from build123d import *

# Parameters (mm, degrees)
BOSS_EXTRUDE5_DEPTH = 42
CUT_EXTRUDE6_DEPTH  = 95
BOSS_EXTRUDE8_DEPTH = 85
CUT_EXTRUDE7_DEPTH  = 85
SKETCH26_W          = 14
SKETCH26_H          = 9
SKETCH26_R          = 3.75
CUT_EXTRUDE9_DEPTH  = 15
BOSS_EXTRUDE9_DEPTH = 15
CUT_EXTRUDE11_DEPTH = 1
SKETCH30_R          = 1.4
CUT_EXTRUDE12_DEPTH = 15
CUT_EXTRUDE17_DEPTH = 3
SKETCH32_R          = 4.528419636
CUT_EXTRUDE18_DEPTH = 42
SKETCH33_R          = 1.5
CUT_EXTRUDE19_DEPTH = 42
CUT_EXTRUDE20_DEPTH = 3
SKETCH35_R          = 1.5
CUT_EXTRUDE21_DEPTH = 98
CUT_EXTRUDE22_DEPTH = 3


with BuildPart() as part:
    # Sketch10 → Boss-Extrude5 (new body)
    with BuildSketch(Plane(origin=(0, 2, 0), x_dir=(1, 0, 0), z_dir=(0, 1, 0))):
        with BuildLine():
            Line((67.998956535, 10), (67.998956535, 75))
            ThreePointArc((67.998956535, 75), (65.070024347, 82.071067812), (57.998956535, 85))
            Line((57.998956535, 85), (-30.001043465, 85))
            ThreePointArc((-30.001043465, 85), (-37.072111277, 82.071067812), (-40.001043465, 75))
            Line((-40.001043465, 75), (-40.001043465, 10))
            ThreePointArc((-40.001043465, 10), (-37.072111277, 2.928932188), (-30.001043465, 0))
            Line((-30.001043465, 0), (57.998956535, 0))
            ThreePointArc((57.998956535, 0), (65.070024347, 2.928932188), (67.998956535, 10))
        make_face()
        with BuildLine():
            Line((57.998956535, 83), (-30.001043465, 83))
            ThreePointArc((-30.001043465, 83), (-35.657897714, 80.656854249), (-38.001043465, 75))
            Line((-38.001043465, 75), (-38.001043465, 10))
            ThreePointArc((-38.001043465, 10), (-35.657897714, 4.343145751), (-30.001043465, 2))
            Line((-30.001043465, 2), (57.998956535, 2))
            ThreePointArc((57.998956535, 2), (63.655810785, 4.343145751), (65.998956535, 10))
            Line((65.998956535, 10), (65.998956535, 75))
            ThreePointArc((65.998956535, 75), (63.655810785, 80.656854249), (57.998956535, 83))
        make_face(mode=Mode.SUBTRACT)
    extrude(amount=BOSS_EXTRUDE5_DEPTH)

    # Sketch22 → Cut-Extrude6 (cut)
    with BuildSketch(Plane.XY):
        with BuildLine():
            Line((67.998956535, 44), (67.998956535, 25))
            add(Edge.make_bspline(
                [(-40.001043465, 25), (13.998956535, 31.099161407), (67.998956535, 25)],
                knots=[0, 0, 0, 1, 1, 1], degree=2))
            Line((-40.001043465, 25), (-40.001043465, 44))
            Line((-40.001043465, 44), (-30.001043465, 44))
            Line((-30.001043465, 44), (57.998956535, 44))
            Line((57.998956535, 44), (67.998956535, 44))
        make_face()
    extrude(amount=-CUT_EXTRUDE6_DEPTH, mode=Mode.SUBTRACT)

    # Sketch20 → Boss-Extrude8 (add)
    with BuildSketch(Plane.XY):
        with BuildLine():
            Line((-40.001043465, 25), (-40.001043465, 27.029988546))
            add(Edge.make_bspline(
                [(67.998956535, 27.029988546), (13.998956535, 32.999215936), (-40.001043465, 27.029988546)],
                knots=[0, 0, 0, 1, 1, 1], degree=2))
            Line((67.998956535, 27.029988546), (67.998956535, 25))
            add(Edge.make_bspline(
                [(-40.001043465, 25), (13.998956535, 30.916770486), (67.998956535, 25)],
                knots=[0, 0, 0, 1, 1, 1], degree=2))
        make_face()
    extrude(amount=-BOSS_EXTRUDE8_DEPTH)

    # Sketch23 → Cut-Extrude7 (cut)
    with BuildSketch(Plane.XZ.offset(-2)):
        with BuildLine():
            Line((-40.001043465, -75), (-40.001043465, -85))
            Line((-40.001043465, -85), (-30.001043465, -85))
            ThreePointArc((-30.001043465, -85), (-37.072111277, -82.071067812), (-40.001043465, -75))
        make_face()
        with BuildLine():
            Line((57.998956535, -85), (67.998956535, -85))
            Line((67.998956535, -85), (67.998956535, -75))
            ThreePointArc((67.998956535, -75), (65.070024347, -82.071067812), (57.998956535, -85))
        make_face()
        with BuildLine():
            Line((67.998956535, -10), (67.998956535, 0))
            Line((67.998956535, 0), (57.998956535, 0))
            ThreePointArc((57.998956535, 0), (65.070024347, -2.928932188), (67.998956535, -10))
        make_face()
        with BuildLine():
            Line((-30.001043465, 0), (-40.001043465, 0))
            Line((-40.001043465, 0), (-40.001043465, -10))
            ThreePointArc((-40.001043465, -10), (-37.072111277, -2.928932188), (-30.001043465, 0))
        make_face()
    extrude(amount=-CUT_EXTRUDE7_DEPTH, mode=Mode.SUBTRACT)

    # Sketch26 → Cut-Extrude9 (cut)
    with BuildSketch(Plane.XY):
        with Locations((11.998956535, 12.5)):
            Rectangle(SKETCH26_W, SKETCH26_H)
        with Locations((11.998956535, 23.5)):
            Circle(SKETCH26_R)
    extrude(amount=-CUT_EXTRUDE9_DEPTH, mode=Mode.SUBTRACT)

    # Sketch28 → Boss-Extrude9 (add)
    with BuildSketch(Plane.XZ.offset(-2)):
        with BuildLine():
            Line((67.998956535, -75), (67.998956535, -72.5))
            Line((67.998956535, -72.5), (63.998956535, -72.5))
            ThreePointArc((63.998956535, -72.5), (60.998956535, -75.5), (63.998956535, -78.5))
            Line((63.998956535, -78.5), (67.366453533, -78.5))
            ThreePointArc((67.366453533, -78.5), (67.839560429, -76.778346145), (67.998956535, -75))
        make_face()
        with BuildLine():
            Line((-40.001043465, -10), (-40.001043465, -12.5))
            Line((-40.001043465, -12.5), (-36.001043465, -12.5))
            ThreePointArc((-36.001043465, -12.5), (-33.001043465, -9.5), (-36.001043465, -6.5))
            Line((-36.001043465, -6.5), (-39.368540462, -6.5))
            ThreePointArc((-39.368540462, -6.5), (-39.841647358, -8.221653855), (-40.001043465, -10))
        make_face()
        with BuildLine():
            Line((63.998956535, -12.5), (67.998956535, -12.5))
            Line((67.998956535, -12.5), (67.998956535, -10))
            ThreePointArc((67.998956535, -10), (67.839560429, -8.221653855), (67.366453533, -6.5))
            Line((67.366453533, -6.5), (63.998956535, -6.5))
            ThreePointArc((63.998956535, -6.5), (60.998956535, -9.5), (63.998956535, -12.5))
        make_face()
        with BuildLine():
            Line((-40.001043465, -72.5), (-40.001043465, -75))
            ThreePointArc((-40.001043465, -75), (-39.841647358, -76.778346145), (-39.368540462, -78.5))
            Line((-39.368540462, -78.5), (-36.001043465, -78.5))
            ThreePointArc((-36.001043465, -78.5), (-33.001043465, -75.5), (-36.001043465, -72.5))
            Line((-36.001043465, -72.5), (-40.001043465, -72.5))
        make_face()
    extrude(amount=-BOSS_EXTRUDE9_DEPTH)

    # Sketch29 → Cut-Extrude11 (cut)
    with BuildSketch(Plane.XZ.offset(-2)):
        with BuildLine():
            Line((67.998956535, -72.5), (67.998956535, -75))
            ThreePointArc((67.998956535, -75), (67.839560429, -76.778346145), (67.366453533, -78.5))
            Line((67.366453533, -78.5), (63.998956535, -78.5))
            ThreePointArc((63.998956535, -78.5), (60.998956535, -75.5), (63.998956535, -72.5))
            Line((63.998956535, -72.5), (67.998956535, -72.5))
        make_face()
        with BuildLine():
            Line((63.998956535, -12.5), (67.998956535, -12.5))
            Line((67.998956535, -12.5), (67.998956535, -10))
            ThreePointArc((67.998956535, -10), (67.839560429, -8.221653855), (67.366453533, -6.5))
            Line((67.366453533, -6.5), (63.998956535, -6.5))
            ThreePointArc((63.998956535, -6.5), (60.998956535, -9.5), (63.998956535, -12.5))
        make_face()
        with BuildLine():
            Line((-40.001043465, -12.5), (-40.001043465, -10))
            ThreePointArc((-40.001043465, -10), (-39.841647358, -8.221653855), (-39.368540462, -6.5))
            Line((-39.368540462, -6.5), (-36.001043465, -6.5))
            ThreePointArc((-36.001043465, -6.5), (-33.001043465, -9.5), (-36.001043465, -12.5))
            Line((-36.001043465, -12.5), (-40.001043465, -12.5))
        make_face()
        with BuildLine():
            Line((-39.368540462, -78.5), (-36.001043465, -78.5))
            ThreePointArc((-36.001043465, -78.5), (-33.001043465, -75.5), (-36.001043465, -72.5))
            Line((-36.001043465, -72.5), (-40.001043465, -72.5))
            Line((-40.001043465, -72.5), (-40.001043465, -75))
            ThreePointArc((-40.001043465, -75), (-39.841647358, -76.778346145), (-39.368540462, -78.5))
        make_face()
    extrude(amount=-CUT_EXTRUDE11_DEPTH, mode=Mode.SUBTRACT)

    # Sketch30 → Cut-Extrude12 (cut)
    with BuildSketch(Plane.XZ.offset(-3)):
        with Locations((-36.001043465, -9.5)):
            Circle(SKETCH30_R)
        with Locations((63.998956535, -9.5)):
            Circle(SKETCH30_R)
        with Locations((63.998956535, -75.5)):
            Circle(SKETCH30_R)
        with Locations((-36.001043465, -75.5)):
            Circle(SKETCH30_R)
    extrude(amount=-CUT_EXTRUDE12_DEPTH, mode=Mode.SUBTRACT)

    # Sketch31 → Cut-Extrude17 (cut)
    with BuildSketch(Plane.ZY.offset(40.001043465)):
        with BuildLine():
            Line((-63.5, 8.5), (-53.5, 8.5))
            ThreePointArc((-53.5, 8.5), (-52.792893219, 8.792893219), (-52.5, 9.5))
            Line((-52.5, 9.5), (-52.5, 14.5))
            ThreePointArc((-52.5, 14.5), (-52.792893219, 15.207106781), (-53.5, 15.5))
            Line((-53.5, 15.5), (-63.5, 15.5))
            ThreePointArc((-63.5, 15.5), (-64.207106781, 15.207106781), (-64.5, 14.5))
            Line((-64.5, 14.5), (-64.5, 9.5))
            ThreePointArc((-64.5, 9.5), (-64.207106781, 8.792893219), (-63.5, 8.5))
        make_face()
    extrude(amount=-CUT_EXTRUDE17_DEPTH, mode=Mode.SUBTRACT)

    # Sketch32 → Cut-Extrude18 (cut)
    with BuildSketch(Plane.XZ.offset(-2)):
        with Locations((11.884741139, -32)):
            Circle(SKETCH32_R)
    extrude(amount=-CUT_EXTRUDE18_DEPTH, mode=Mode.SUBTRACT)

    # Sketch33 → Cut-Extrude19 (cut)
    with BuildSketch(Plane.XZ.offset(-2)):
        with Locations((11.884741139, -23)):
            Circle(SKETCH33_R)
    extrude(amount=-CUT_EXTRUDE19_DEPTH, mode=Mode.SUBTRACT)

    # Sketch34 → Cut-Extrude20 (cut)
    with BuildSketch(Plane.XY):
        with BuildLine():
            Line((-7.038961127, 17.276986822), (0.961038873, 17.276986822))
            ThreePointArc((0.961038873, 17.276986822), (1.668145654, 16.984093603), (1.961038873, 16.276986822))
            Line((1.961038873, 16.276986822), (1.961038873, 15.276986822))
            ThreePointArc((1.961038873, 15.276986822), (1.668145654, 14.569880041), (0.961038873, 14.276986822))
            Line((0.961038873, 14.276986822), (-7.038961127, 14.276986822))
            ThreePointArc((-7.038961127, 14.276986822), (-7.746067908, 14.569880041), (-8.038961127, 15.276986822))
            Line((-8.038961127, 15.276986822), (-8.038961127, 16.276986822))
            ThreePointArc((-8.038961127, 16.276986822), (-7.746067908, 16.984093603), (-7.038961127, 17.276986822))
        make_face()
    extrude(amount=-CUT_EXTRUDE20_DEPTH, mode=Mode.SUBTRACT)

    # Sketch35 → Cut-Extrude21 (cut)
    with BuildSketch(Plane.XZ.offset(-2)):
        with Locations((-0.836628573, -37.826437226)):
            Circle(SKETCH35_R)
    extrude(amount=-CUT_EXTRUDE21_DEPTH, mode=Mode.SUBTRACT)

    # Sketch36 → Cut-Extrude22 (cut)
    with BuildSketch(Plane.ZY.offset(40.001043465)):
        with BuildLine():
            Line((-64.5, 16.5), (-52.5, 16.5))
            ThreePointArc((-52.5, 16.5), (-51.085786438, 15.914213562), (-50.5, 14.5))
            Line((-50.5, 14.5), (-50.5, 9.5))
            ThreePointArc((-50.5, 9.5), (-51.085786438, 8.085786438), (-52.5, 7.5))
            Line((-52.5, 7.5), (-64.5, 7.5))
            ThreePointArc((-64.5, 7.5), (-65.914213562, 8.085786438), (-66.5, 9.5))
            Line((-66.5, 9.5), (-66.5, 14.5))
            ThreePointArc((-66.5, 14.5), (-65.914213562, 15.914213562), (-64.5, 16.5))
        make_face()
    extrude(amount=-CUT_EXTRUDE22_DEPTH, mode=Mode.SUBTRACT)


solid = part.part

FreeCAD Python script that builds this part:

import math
import FreeCAD as App
import Part
import Sketcher
from FreeCAD import Vector

doc = App.newDocument("Part")
body = doc.addObject("PartDesign::Body", "Body")

sketch1 = body.newObject("Sketcher::SketchObject", "Sketch")
sketch1.AttachmentSupport = (doc.getObject("XZ_Plane"), [""])
sketch1.MapMode = "FlatFace"
sketch1.AttachmentOffset = App.Placement(Vector(0, 0, -2), App.Rotation())
sketch1.addGeometry(Part.LineSegment(Vector(67.998957, -10, 0), Vector(67.998957, -75, 0)), False)
sketch1.addGeometry(Part.ArcOfCircle(Part.Circle(Vector(57.998957, -75, 0), Vector(0, 0, 1), 10), math.radians(-90), math.radians(0)), False)
sketch1.addGeometry(Part.LineSegment(Vector(57.998957, -85, 0), Vector(-30.001043, -85, 0)), False)
sketch1.addGeometry(Part.ArcOfCircle(Part.Circle(Vector(-30.001043, -75, 0), Vector(0, 0, 1), 10), math.radians(180), math.radians(270)), False)
sketch1.addGeometry(Part.LineSegment(Vector(-40.001043, -75, 0), Vector(-40.001043, -10, 0)), False)
sketch1.addGeometry(Part.ArcOfCircle(Part.Circle(Vector(-30.001043, -10, 0), Vector(0, 0, 1), 10), math.radians(90), math.radians(180)), False)
sketch1.addGeometry(Part.LineSegment(Vector(-30.001043, 0, 0), Vector(57.998957, 0, 0)), False)
sketch1.addGeometry(Part.ArcOfCircle(Part.Circle(Vector(57.998957, -10, 0), Vector(0, 0, 1), 10), math.radians(0), math.radians(90)), False)
sketch1.addGeometry(Part.LineSegment(Vector(-30.001043, -83, 0), Vector(57.998957, -83, 0)), False)
sketch1.addGeometry(Part.ArcOfCircle(Part.Circle(Vector(57.998957, -75, 0), Vector(0, 0, 1), 8), math.radians(-90), math.radians(0)), False)
sketch1.addGeometry(Part.LineSegment(Vector(65.998957, -75, 0), Vector(65.998957, -10, 0)), False)
sketch1.addGeometry(Part.ArcOfCircle(Part.Circle(Vector(57.998957, -10, 0), Vector(0, 0, 1), 8), math.radians(0), math.radians(90)), False)
sketch1.addGeometry(Part.LineSegment(Vector(57.998957, -2, 0), Vector(-30.001043, -2, 0)), False)
sketch1.addGeometry(Part.ArcOfCircle(Part.Circle(Vector(-30.001043, -10, 0), Vector(0, 0, 1), 8), math.radians(90), math.radians(180)), False)
sketch1.addGeometry(Part.LineSegment(Vector(-38.001043, -10, 0), Vector(-38.001043, -75, 0)), False)
sketch1.addGeometry(Part.ArcOfCircle(Part.Circle(Vector(-30.001043, -75, 0), Vector(0, 0, 1), 8), math.radians(-180), math.radians(-90)), False)
sketch1.addConstraint(Sketcher.Constraint("Tangent", 0, 2, 1, 2))
sketch1.addConstraint(Sketcher.Constraint("Tangent", 1, 1, 2, 1))
sketch1.addConstraint(Sketcher.Constraint("Tangent", 2, 2, 3, 2))
sketch1.addConstraint(Sketcher.Constraint("Tangent", 3, 1, 4, 1))
sketch1.addConstraint(Sketcher.Constraint("Tangent", 4, 2, 5, 2))
sketch1.addConstraint(Sketcher.Constraint("Tangent", 5, 1, 6, 1))
sketch1.addConstraint(Sketcher.Constraint("Tangent", 6, 2, 7, 2))
sketch1.addConstraint(Sketcher.Constraint("Tangent", 7, 1, 0, 1))
sketch1.addConstraint(Sketcher.Constraint("Tangent", 8, 2, 9, 1))
sketch1.addConstraint(Sketcher.Constraint("Tangent", 9, 2, 10, 1))
sketch1.addConstraint(Sketcher.Constraint("Tangent", 10, 2, 11, 1))
sketch1.addConstraint(Sketcher.Constraint("Tangent", 11, 2, 12, 1))
sketch1.addConstraint(Sketcher.Constraint("Tangent", 12, 2, 13, 1))
sketch1.addConstraint(Sketcher.Constraint("Tangent", 13, 2, 14, 1))
sketch1.addConstraint(Sketcher.Constraint("Tangent", 14, 2, 15, 1))
sketch1.addConstraint(Sketcher.Constraint("Tangent", 15, 2, 8, 1))
sketch1.addConstraint(Sketcher.Constraint("Vertical", 0))
sketch1.addConstraint(Sketcher.Constraint("Horizontal", 2))
sketch1.addConstraint(Sketcher.Constraint("Vertical", 4))
sketch1.addConstraint(Sketcher.Constraint("Horizontal", 6))
sketch1.addConstraint(Sketcher.Constraint("Horizontal", 8))
sketch1.addConstraint(Sketcher.Constraint("Vertical", 10))
sketch1.addConstraint(Sketcher.Constraint("Horizontal", 12))
sketch1.addConstraint(Sketcher.Constraint("Vertical", 14))
sketch1.addConstraint(Sketcher.Constraint("Coincident", 9, 3, 1, 3))
sketch1.addConstraint(Sketcher.Constraint("Coincident", 11, 3, 7, 3))
sketch1.addConstraint(Sketcher.Constraint("Coincident", 13, 3, 5, 3))
sketch1.addConstraint(Sketcher.Constraint("Equal", 1, 3))
sketch1.addConstraint(Sketcher.Constraint("Equal", 3, 5))
sketch1.addConstraint(Sketcher.Constraint("Equal", 5, 7))
sketch1.addConstraint(Sketcher.Constraint("Equal", 13, 15))
sketch1.addConstraint(Sketcher.Constraint("PointOnObject", 5, 1, -1))
sketch1.addConstraint(Sketcher.Constraint("Radius", 1, 10.0))
sketch1.addConstraint(Sketcher.Constraint("Radius", 9, 8.0))
sketch1.addConstraint(Sketcher.Constraint("DistanceX", 2, 2, 2, 1, 88.0))
sketch1.addConstraint(Sketcher.Constraint("DistanceY", 0, 2, 0, 1, 65.0))
sketch1.addConstraint(Sketcher.Constraint("DistanceX", -1, 1, 1, 3, 57.998957))
pad1 = body.newObject("PartDesign::Pad", "Pad")
pad1.Profile = sketch1
pad1.Length = 42
pad1.Reversed = True

sketch2 = body.newObject("Sketcher::SketchObject", "Sketch001")
sketch2.AttachmentSupport = (doc.getObject("XY_Plane"), [""])
sketch2.MapMode = "FlatFace"
sketch2.addGeometry(Part.LineSegment(Vector(67.998957, 25, 0), Vector(67.998957, 44, 0)), False)
sketch2.addGeometry(Part.LineSegment(Vector(67.998957, 44, 0), Vector(-40.001043, 44, 0)), False)
sketch2.addGeometry(Part.LineSegment(Vector(-40.001043, 44, 0), Vector(-40.001043, 25, 0)), False)
sketch2.addGeometry(Part.BSplineCurve([Vector(-40.001043, 25, 0), Vector(13.998957, 31.099161, 0), Vector(67.998957, 25, 0)], [3, 3], [0, 1], False, 2, [1, 1, 1], False), False)
sketch2.addConstraint(Sketcher.Constraint("Block", 3))
sketch2.addConstraint(Sketcher.Constraint("Coincident", 0, 2, 1, 1))
sketch2.addConstraint(Sketcher.Constraint("Coincident", 1, 2, 2, 1))
sketch2.addConstraint(Sketcher.Constraint("Coincident", 2, 2, 3, 1))
sketch2.addConstraint(Sketcher.Constraint("Coincident", 3, 2, 0, 1))
sketch2.addConstraint(Sketcher.Constraint("Vertical", 0))
sketch2.addConstraint(Sketcher.Constraint("Horizontal", 1))
sketch2.addConstraint(Sketcher.Constraint("Vertical", 2))
sketch2.addConstraint(Sketcher.Constraint("DistanceY", 0, 1, 0, 2, 19.0))
pocket1 = body.newObject("PartDesign::Pocket", "Pocket")
pocket1.Profile = sketch2
pocket1.Length = 95

sketch3 = body.newObject("Sketcher::SketchObject", "Sketch002")
sketch3.AttachmentSupport = (doc.getObject("XY_Plane"), [""])
sketch3.MapMode = "FlatFace"
sketch3.addGeometry(Part.LineSegment(Vector(-40.001043, 27.029989, 0), Vector(-40.001043, 25, 0)), False)
sketch3.addGeometry(Part.BSplineCurve([Vector(-40.001043, 25, 0), Vector(13.998957, 30.91677, 0), Vector(67.998957, 25, 0)], [3, 3], [0, 1], False, 2, [1, 1, 1], False), False)
sketch3.addGeometry(Part.LineSegment(Vector(67.998957, 25, 0), Vector(67.998957, 27.029989, 0)), False)
sketch3.addGeometry(Part.BSplineCurve([Vector(67.998957, 27.029989, 0), Vector(13.998957, 32.999216, 0), Vector(-40.001043, 27.029989, 0)], [3, 3], [0, 1], False, 2, [1, 1, 1], False), False)
sketch3.addConstraint(Sketcher.Constraint("Block", 1))
sketch3.addConstraint(Sketcher.Constraint("Block", 3))
sketch3.addConstraint(Sketcher.Constraint("Coincident", 0, 2, 1, 1))
sketch3.addConstraint(Sketcher.Constraint("Coincident", 1, 2, 2, 1))
sketch3.addConstraint(Sketcher.Constraint("Coincident", 2, 2, 3, 1))
sketch3.addConstraint(Sketcher.Constraint("Coincident", 3, 2, 0, 1))
pad2 = body.newObject("PartDesign::Pad", "Pad001")
pad2.Profile = sketch3
pad2.Length = 85
pad2.Reversed = True

sketch4 = body.newObject("Sketcher::SketchObject", "Sketch003")
sketch4.AttachmentSupport = (doc.getObject("XZ_Plane"), [""])
sketch4.MapMode = "FlatFace"
sketch4.AttachmentOffset = App.Placement(Vector(0, 0, -2), App.Rotation())
sketch4.addGeometry(Part.LineSegment(Vector(-40.001043, -75, 0), Vector(-40.001043, -85, 0)), False)
sketch4.addGeometry(Part.LineSegment(Vector(-40.001043, -85, 0), Vector(-30.001043, -85, 0)), False)
sketch4.addGeometry(Part.ArcOfCircle(Part.Circle(Vector(-30.001043, -75, 0), Vector(0, 0, 1), 10), math.radians(180), math.radians(270)), False)
sketch4.addGeometry(Part.LineSegment(Vector(57.998957, -85, 0), Vector(67.998957, -85, 0)), False)
sketch4.addGeometry(Part.LineSegment(Vector(67.998957, -85, 0), Vector(67.998957, -75, 0)), False)
sketch4.addGeometry(Part.ArcOfCircle(Part.Circle(Vector(57.998957, -75, 0), Vector(0, 0, 1), 10), math.radians(-90), math.radians(0)), False)
sketch4.addGeometry(Part.LineSegment(Vector(67.998957, -10, 0), Vector(67.998957, 0, 0)), False)
sketch4.addGeometry(Part.LineSegment(Vector(67.998957, 0, 0), Vector(57.998957, 0, 0)), False)
sketch4.addGeometry(Part.ArcOfCircle(Part.Circle(Vector(57.998957, -10, 0), Vector(0, 0, 1), 10), math.radians(0), math.radians(90)), False)
sketch4.addGeometry(Part.LineSegment(Vector(-30.001043, 0, 0), Vector(-40.001043, 0, 0)), False)
sketch4.addGeometry(Part.LineSegment(Vector(-40.001043, 0, 0), Vector(-40.001043, -10, 0)), False)
sketch4.addGeometry(Part.ArcOfCircle(Part.Circle(Vector(-30.001043, -10, 0), Vector(0, 0, 1), 10), math.radians(90), math.radians(180)), False)
sketch4.addConstraint(Sketcher.Constraint("Coincident", 0, 2, 1, 1))
sketch4.addConstraint(Sketcher.Constraint("Tangent", 1, 2, 2, 2))
sketch4.addConstraint(Sketcher.Constraint("Tangent", 2, 1, 0, 1))
sketch4.addConstraint(Sketcher.Constraint("Coincident", 3, 2, 4, 1))
sketch4.addConstraint(Sketcher.Constraint("Tangent", 4, 2, 5, 2))
sketch4.addConstraint(Sketcher.Constraint("Tangent", 5, 1, 3, 1))
sketch4.addConstraint(Sketcher.Constraint("Coincident", 6, 2, 7, 1))
sketch4.addConstraint(Sketcher.Constraint("Tangent", 7, 2, 8, 2))
sketch4.addConstraint(Sketcher.Constraint("Tangent", 8, 1, 6, 1))
sketch4.addConstraint(Sketcher.Constraint("Coincident", 9, 2, 10, 1))
sketch4.addConstraint(Sketcher.Constraint("Tangent", 10, 2, 11, 2))
sketch4.addConstraint(Sketcher.Constraint("Tangent", 11, 1, 9, 1))
sketch4.addConstraint(Sketcher.Constraint("Vertical", 0))
sketch4.addConstraint(Sketcher.Constraint("Horizontal", 1))
sketch4.addConstraint(Sketcher.Constraint("Horizontal", 3))
sketch4.addConstraint(Sketcher.Constraint("Vertical", 4))
sketch4.addConstraint(Sketcher.Constraint("Vertical", 6))
sketch4.addConstraint(Sketcher.Constraint("Horizontal", 7))
sketch4.addConstraint(Sketcher.Constraint("Horizontal", 9))
sketch4.addConstraint(Sketcher.Constraint("Vertical", 10))
sketch4.addConstraint(Sketcher.Constraint("Equal", 2, 5))
sketch4.addConstraint(Sketcher.Constraint("Equal", 5, 8))
sketch4.addConstraint(Sketcher.Constraint("Equal", 8, 11))
sketch4.addConstraint(Sketcher.Constraint("PointOnObject", 6, 2, -1))
sketch4.addConstraint(Sketcher.Constraint("PointOnObject", 9, 2, -1))
sketch4.addConstraint(Sketcher.Constraint("Horizontal", 2, 3, 5, 3))
sketch4.addConstraint(Sketcher.Constraint("Vertical", 5, 3, 8, 3))
sketch4.addConstraint(Sketcher.Constraint("Vertical", 2, 3, 11, 3))
sketch4.addConstraint(Sketcher.Constraint("Radius", 2, 10.0))
sketch4.addConstraint(Sketcher.Constraint("DistanceY", 2, 3, -1, 1, 75.0))
sketch4.addConstraint(Sketcher.Constraint("DistanceX", 2, 3, 5, 3, 88.0))
sketch4.addConstraint(Sketcher.Constraint("DistanceX", 2, 3, -1, 1, 30.001043))
pocket2 = body.newObject("PartDesign::Pocket", "Pocket001")
pocket2.Profile = sketch4
pocket2.Length = 85

sketch5 = body.newObject("Sketcher::SketchObject", "Sketch004")
sketch5.AttachmentSupport = (doc.getObject("XY_Plane"), [""])
sketch5.MapMode = "FlatFace"
sketch5.addGeometry(Part.LineSegment(Vector(4.998957, 17, 0), Vector(4.998957, 8, 0)), False)
sketch5.addGeometry(Part.LineSegment(Vector(4.998957, 8, 0), Vector(18.998957, 8, 0)), False)
sketch5.addGeometry(Part.LineSegment(Vector(18.998957, 8, 0), Vector(18.998957, 17, 0)), False)
sketch5.addGeometry(Part.LineSegment(Vector(18.998957, 17, 0), Vector(4.998957, 17, 0)), False)
sketch5.addGeometry(Part.Circle(Vector(11.998957, 23.5, 0), Vector(0, 0, 1), 3.75), False)
sketch5.addConstraint(Sketcher.Constraint("Coincident", 0, 2, 1, 1))
sketch5.addConstraint(Sketcher.Constraint("Coincident", 1, 2, 2, 1))
sketch5.addConstraint(Sketcher.Constraint("Coincident", 2, 2, 3, 1))
sketch5.addConstraint(Sketcher.Constraint("Coincident", 3, 2, 0, 1))
sketch5.addConstraint(Sketcher.Constraint("Vertical", 0))
sketch5.addConstraint(Sketcher.Constraint("Horizontal", 1))
sketch5.addConstraint(Sketcher.Constraint("Vertical", 2))
sketch5.addConstraint(Sketcher.Constraint("Horizontal", 3))
sketch5.addConstraint(Sketcher.Constraint("Diameter", 4, 7.5))
sketch5.addConstraint(Sketcher.Constraint("DistanceX", 1, 1, 1, 2, 14.0))
sketch5.addConstraint(Sketcher.Constraint("DistanceY", 0, 2, 0, 1, 9.0))
sketch5.addConstraint(Sketcher.Constraint("DistanceY", -1, 1, 0, 2, 8.0))
sketch5.addConstraint(Sketcher.Constraint("DistanceX", 0, 2, 4, 3, 7.0))
sketch5.addConstraint(Sketcher.Constraint("DistanceY", -1, 1, 4, 3, 23.5))
sketch5.addConstraint(Sketcher.Constraint("DistanceX", -1, 1, 4, 3, 11.998957))
pocket3 = body.newObject("PartDesign::Pocket", "Pocket002")
pocket3.Profile = sketch5
pocket3.Length = 15

sketch6 = body.newObject("Sketcher::SketchObject", "Sketch005")
sketch6.AttachmentSupport = (doc.getObject("XZ_Plane"), [""])
sketch6.MapMode = "FlatFace"
sketch6.AttachmentOffset = App.Placement(Vector(0, 0, -2), App.Rotation())
sketch6.addGeometry(Part.LineSegment(Vector(67.998957, -75, 0), Vector(67.998957, -72.5, 0)), False)
sketch6.addGeometry(Part.LineSegment(Vector(67.998957, -72.5, 0), Vector(63.998957, -72.5, 0)), False)
sketch6.addGeometry(Part.ArcOfCircle(Part.Circle(Vector(63.998957, -75.5, 0), Vector(0, 0, 1), 3), math.radians(90), math.radians(270)), False)
sketch6.addGeometry(Part.LineSegment(Vector(63.998957, -78.5, 0), Vector(67.366454, -78.5, 0)), False)
sketch6.addGeometry(Part.ArcOfCircle(Part.Circle(Vector(57.998957, -75, 0), Vector(0, 0, 1), 10), math.radians(-20.487315), math.radians(0)), False)
sketch6.addGeometry(Part.LineSegment(Vector(-40.001043, -10, 0), Vector(-40.001043, -12.5, 0)), False)
sketch6.addGeometry(Part.LineSegment(Vector(-40.001043, -12.5, 0), Vector(-36.001043, -12.5, 0)), False)
sketch6.addGeometry(Part.ArcOfCircle(Part.Circle(Vector(-36.001043, -9.5, 0), Vector(0, 0, 1), 3), math.radians(-90), math.radians(90)), False)
sketch6.addGeometry(Part.LineSegment(Vector(-36.001043, -6.5, 0), Vector(-39.36854, -6.5, 0)), False)
sketch6.addGeometry(Part.ArcOfCircle(Part.Circle(Vector(-30.001043, -10, 0), Vector(0, 0, 1), 10), math.radians(159.512685), math.radians(180)), False)
sketch6.addGeometry(Part.LineSegment(Vector(63.998957, -12.5, 0), Vector(67.998957, -12.5, 0)), False)
sketch6.addGeometry(Part.LineSegment(Vector(67.998957, -12.5, 0), Vector(67.998957, -10, 0)), False)
sketch6.addGeometry(Part.ArcOfCircle(Part.Circle(Vector(57.998957, -10, 0), Vector(0, 0, 1), 10), math.radians(0), math.radians(20.487315)), False)
sketch6.addGeometry(Part.LineSegment(Vector(67.366454, -6.5, 0), Vector(63.998957, -6.5, 0)), False)
sketch6.addGeometry(Part.ArcOfCircle(Part.Circle(Vector(63.998957, -9.5, 0), Vector(0, 0, 1), 3), math.radians(90), math.radians(270)), False)
sketch6.addGeometry(Part.LineSegment(Vector(-40.001043, -72.5, 0), Vector(-40.001043, -75, 0)), False)
sketch6.addGeometry(Part.ArcOfCircle(Part.Circle(Vector(-30.001043, -75, 0), Vector(0, 0, 1), 10), math.radians(-180), math.radians(-159.512685)), False)
sketch6.addGeometry(Part.LineSegment(Vector(-39.36854, -78.5, 0), Vector(-36.001043, -78.5, 0)), False)
sketch6.addGeometry(Part.ArcOfCircle(Part.Circle(Vector(-36.001043, -75.5, 0), Vector(0, 0, 1), 3), math.radians(-90), math.radians(90)), False)
sketch6.addGeometry(Part.LineSegment(Vector(-36.001043, -72.5, 0), Vector(-40.001043, -72.5, 0)), False)
sketch6.addConstraint(Sketcher.Constraint("Coincident", 0, 2, 1, 1))
sketch6.addConstraint(Sketcher.Constraint("Tangent", 1, 2, 2, 1))
sketch6.addConstraint(Sketcher.Constraint("Tangent", 2, 2, 3, 1))
sketch6.addConstraint(Sketcher.Constraint("Coincident", 3, 2, 4, 1))
sketch6.addConstraint(Sketcher.Constraint("Tangent", 4, 2, 0, 1))
sketch6.addConstraint(Sketcher.Constraint("Coincident", 5, 2, 6, 1))
sketch6.addConstraint(Sketcher.Constraint("Tangent", 6, 2, 7, 1))
sketch6.addConstraint(Sketcher.Constraint("Tangent", 7, 2, 8, 1))
sketch6.addConstraint(Sketcher.Constraint("Coincident", 8, 2, 9, 1))
sketch6.addConstraint(Sketcher.Constraint("Tangent", 9, 2, 5, 1))
sketch6.addConstraint(Sketcher.Constraint("Coincident", 10, 2, 11, 1))
sketch6.addConstraint(Sketcher.Constraint("Tangent", 11, 2, 12, 1))
sketch6.addConstraint(Sketcher.Constraint("Coincident", 12, 2, 13, 1))
sketch6.addConstraint(Sketcher.Constraint("Tangent", 13, 2, 14, 1))
sketch6.addConstraint(Sketcher.Constraint("Tangent", 14, 2, 10, 1))
sketch6.addConstraint(Sketcher.Constraint("Tangent", 15, 2, 16, 1))
sketch6.addConstraint(Sketcher.Constraint("Coincident", 16, 2, 17, 1))
sketch6.addConstraint(Sketcher.Constraint("Tangent", 17, 2, 18, 1))
sketch6.addConstraint(Sketcher.Constraint("Tangent", 18, 2, 19, 1))
sketch6.addConstraint(Sketcher.Constraint("Coincident", 19, 2, 15, 1))
sketch6.addConstraint(Sketcher.Constraint("Vertical", 0))
sketch6.addConstraint(Sketcher.Constraint("Horizontal", 1))
sketch6.addConstraint(Sketcher.Constraint("Horizontal", 3))
sketch6.addConstraint(Sketcher.Constraint("Vertical", 5))
sketch6.addConstraint(Sketcher.Constraint("Horizontal", 6))
sketch6.addConstraint(Sketcher.Constraint("Horizontal", 8))
sketch6.addConstraint(Sketcher.Constraint("Horizontal", 10))
sketch6.addConstraint(Sketcher.Constraint("Vertical", 11))
sketch6.addConstraint(Sketcher.Constraint("Horizontal", 13))
sketch6.addConstraint(Sketcher.Constraint("Vertical", 15))
sketch6.addConstraint(Sketcher.Constraint("Horizontal", 17))
sketch6.addConstraint(Sketcher.Constraint("Horizontal", 19))
sketch6.addConstraint(Sketcher.Constraint("Equal", 2, 7))
sketch6.addConstraint(Sketcher.Constraint("Equal", 4, 9))
sketch6.addConstraint(Sketcher.Constraint("Equal", 9, 12))
sketch6.addConstraint(Sketcher.Constraint("Equal", 7, 14))
sketch6.addConstraint(Sketcher.Constraint("Equal", 12, 16))
sketch6.addConstraint(Sketcher.Constraint("Equal", 14, 18))
sketch6.addConstraint(Sketcher.Constraint("Horizontal", 9, 3, 12, 3))
sketch6.addConstraint(Sketcher.Constraint("Horizontal", 7, 3, 14, 3))
sketch6.addConstraint(Sketcher.Constraint("Horizontal", 4, 3, 16, 3))
sketch6.addConstraint(Sketcher.Constraint("Horizontal", 2, 3, 18, 3))
sketch6.addConstraint(Sketcher.Constraint("Vertical", 4, 3, 12, 3))
sketch6.addConstraint(Sketcher.Constraint("Vertical", 2, 3, 14, 3))
sketch6.addConstraint(Sketcher.Constraint("Vertical", 9, 3, 16, 3))
sketch6.addConstraint(Sketcher.Constraint("Vertical", 7, 3, 18, 3))
sketch6.addConstraint(Sketcher.Constraint("Vertical", 3, 2, 12, 2))
sketch6.addConstraint(Sketcher.Constraint("Equal", 1, 6))
sketch6.addConstraint(Sketcher.Constraint("Radius", 2, 3.0))
sketch6.addConstraint(Sketcher.Constraint("Radius", 4, 10.0))
sketch6.addConstraint(Sketcher.Constraint("DistanceX", 1, 2, 1, 1, 4.0))
sketch6.addConstraint(Sketcher.Constraint("DistanceY", 0, 1, 0, 2, 2.5))
sketch6.addConstraint(Sketcher.Constraint("DistanceY", 4, 3, -1, 1, 75.0))
sketch6.addConstraint(Sketcher.Constraint("DistanceY", 9, 3, -1, 1, 10.0))
sketch6.addConstraint(Sketcher.Constraint("DistanceX", 7, 3, 4, 3, 94.0))
sketch6.addConstraint(Sketcher.Constraint("DistanceX", 8, 2, -1, 1, 39.36854))
pad3 = body.newObject("PartDesign::Pad", "Pad002")
pad3.Profile = sketch6
pad3.Length = 15
pad3.Reversed = True

sketch7 = body.newObject("Sketcher::SketchObject", "Sketch006")
sketch7.AttachmentSupport = (doc.getObject("XZ_Plane"), [""])
sketch7.MapMode = "FlatFace"
sketch7.AttachmentOffset = App.Placement(Vector(0, 0, -2), App.Rotation())
sketch7.addGeometry(Part.LineSegment(Vector(67.998957, -75, 0), Vector(67.998957, -72.5, 0)), False)
sketch7.addGeometry(Part.LineSegment(Vector(67.998957, -72.5, 0), Vector(63.998957, -72.5, 0)), False)
sketch7.addGeometry(Part.ArcOfCircle(Part.Circle(Vector(63.998957, -75.5, 0), Vector(0, 0, 1), 3), math.radians(90), math.radians(270)), False)
sketch7.addGeometry(Part.LineSegment(Vector(63.998957, -78.5, 0), Vector(67.366454, -78.5, 0)), False)
sketch7.addGeometry(Part.ArcOfCircle(Part.Circle(Vector(57.998957, -75, 0), Vector(0, 0, 1), 10), math.radians(-20.487315), math.radians(0)), False)
sketch7.addGeometry(Part.LineSegment(Vector(63.998957, -12.5, 0), Vector(67.998957, -12.5, 0)), False)
sketch7.addGeometry(Part.LineSegment(Vector(67.998957, -12.5, 0), Vector(67.998957, -10, 0)), False)
sketch7.addGeometry(Part.ArcOfCircle(Part.Circle(Vector(57.998957, -10, 0), Vector(0, 0, 1), 10), math.radians(0), math.radians(20.487315)), False)
sketch7.addGeometry(Part.LineSegment(Vector(67.366454, -6.5, 0), Vector(63.998957, -6.5, 0)), False)
sketch7.addGeometry(Part.ArcOfCircle(Part.Circle(Vector(63.998957, -9.5, 0), Vector(0, 0, 1), 3), math.radians(90), math.radians(270)), False)
sketch7.addGeometry(Part.LineSegment(Vector(-40.001043, -10, 0), Vector(-40.001043, -12.5, 0)), False)
sketch7.addGeometry(Part.LineSegment(Vector(-40.001043, -12.5, 0), Vector(-36.001043, -12.5, 0)), False)
sketch7.addGeometry(Part.ArcOfCircle(Part.Circle(Vector(-36.001043, -9.5, 0), Vector(0, 0, 1), 3), math.radians(-90), math.radians(90)), False)
sketch7.addGeometry(Part.LineSegment(Vector(-36.001043, -6.5, 0), Vector(-39.36854, -6.5, 0)), False)
sketch7.addGeometry(Part.ArcOfCircle(Part.Circle(Vector(-30.001043, -10, 0), Vector(0, 0, 1), 10), math.radians(159.512685), math.radians(180)), False)
sketch7.addGeometry(Part.LineSegment(Vector(-39.36854, -78.5, 0), Vector(-36.001043, -78.5, 0)), False)
sketch7.addGeometry(Part.ArcOfCircle(Part.Circle(Vector(-36.001043, -75.5, 0), Vector(0, 0, 1), 3), math.radians(-90), math.radians(90)), False)
sketch7.addGeometry(Part.LineSegment(Vector(-36.001043, -72.5, 0), Vector(-40.001043, -72.5, 0)), False)
sketch7.addGeometry(Part.LineSegment(Vector(-40.001043, -72.5, 0), Vector(-40.001043, -75, 0)), False)
sketch7.addGeometry(Part.ArcOfCircle(Part.Circle(Vector(-30.001043, -75, 0), Vector(0, 0, 1), 10), math.radians(-180), math.radians(-159.512685)), False)
sketch7.addConstraint(Sketcher.Constraint("Coincident", 0, 2, 1, 1))
sketch7.addConstraint(Sketcher.Constraint("Tangent", 1, 2, 2, 1))
sketch7.addConstraint(Sketcher.Constraint("Tangent", 2, 2, 3, 1))
sketch7.addConstraint(Sketcher.Constraint("Coincident", 3, 2, 4, 1))
sketch7.addConstraint(Sketcher.Constraint("Tangent", 4, 2, 0, 1))
sketch7.addConstraint(Sketcher.Constraint("Coincident", 5, 2, 6, 1))
sketch7.addConstraint(Sketcher.Constraint("Tangent", 6, 2, 7, 1))
sketch7.addConstraint(Sketcher.Constraint("Coincident", 7, 2, 8, 1))
sketch7.addConstraint(Sketcher.Constraint("Tangent", 8, 2, 9, 1))
sketch7.addConstraint(Sketcher.Constraint("Tangent", 9, 2, 5, 1))
sketch7.addConstraint(Sketcher.Constraint("Coincident", 10, 2, 11, 1))
sketch7.addConstraint(Sketcher.Constraint("Tangent", 11, 2, 12, 1))
sketch7.addConstraint(Sketcher.Constraint("Tangent", 12, 2, 13, 1))
sketch7.addConstraint(Sketcher.Constraint("Coincident", 13, 2, 14, 1))
sketch7.addConstraint(Sketcher.Constraint("Tangent", 14, 2, 10, 1))
sketch7.addConstraint(Sketcher.Constraint("Tangent", 15, 2, 16, 1))
sketch7.addConstraint(Sketcher.Constraint("Tangent", 16, 2, 17, 1))
sketch7.addConstraint(Sketcher.Constraint("Coincident", 17, 2, 18, 1))
sketch7.addConstraint(Sketcher.Constraint("Tangent", 18, 2, 19, 1))
sketch7.addConstraint(Sketcher.Constraint("Coincident", 19, 2, 15, 1))
sketch7.addConstraint(Sketcher.Constraint("Vertical", 0))
sketch7.addConstraint(Sketcher.Constraint("Horizontal", 1))
sketch7.addConstraint(Sketcher.Constraint("Horizontal", 3))
sketch7.addConstraint(Sketcher.Constraint("Horizontal", 5))
sketch7.addConstraint(Sketcher.Constraint("Vertical", 6))
sketch7.addConstraint(Sketcher.Constraint("Horizontal", 8))
sketch7.addConstraint(Sketcher.Constraint("Vertical", 10))
sketch7.addConstraint(Sketcher.Constraint("Horizontal", 11))
sketch7.addConstraint(Sketcher.Constraint("Horizontal", 13))
sketch7.addConstraint(Sketcher.Constraint("Horizontal", 15))
sketch7.addConstraint(Sketcher.Constraint("Horizontal", 17))
sketch7.addConstraint(Sketcher.Constraint("Vertical", 18))
sketch7.addConstraint(Sketcher.Constraint("Equal", 4, 7))
sketch7.addConstraint(Sketcher.Constraint("Equal", 2, 9))
sketch7.addConstraint(Sketcher.Constraint("Equal", 9, 12))
sketch7.addConstraint(Sketcher.Constraint("Equal", 7, 14))
sketch7.addConstraint(Sketcher.Constraint("Equal", 12, 16))
sketch7.addConstraint(Sketcher.Constraint("Equal", 14, 19))
sketch7.addConstraint(Sketcher.Constraint("Horizontal", 9, 3, 12, 3))
sketch7.addConstraint(Sketcher.Constraint("Horizontal", 7, 3, 14, 3))
sketch7.addConstraint(Sketcher.Constraint("Horizontal", 2, 3, 16, 3))
sketch7.addConstraint(Sketcher.Constraint("Horizontal", 4, 3, 19, 3))
sketch7.addConstraint(Sketcher.Constraint("Vertical", 4, 3, 7, 3))
sketch7.addConstraint(Sketcher.Constraint("Vertical", 2, 3, 9, 3))
sketch7.addConstraint(Sketcher.Constraint("Vertical", 12, 3, 16, 3))
sketch7.addConstraint(Sketcher.Constraint("Vertical", 14, 3, 19, 3))
sketch7.addConstraint(Sketcher.Constraint("Vertical", 3, 2, 7, 2))
sketch7.addConstraint(Sketcher.Constraint("Equal", 5, 11))
sketch7.addConstraint(Sketcher.Constraint("Radius", 2, 3.0))
sketch7.addConstraint(Sketcher.Constraint("Radius", 4, 10.0))
sketch7.addConstraint(Sketcher.Constraint("DistanceX", 1, 2, 1, 1, 4.0))
sketch7.addConstraint(Sketcher.Constraint("DistanceY", 0, 1, 0, 2, 2.5))
sketch7.addConstraint(Sketcher.Constraint("DistanceY", 4, 3, -1, 1, 75.0))
sketch7.addConstraint(Sketcher.Constraint("DistanceY", 7, 3, -1, 1, 10.0))
sketch7.addConstraint(Sketcher.Constraint("DistanceX", 12, 3, 7, 3, 94.0))
sketch7.addConstraint(Sketcher.Constraint("DistanceX", 13, 2, -1, 1, 39.36854))
pocket4 = body.newObject("PartDesign::Pocket", "Pocket003")
pocket4.Profile = sketch7
pocket4.Length = 1

sketch8 = body.newObject("Sketcher::SketchObject", "Sketch007")
sketch8.AttachmentSupport = (doc.getObject("XZ_Plane"), [""])
sketch8.MapMode = "FlatFace"
sketch8.AttachmentOffset = App.Placement(Vector(0, 0, -3), App.Rotation())
sketch8.addGeometry(Part.Circle(Vector(-36.001043, -9.5, 0), Vector(0, 0, 1), 1.4), False)
sketch8.addGeometry(Part.Circle(Vector(63.998957, -9.5, 0), Vector(0, 0, 1), 1.4), False)
sketch8.addGeometry(Part.Circle(Vector(63.998957, -75.5, 0), Vector(0, 0, 1), 1.4), False)
sketch8.addGeometry(Part.Circle(Vector(-36.001043, -75.5, 0), Vector(0, 0, 1), 1.4), False)
sketch8.addConstraint(Sketcher.Constraint("Equal", 0, 1))
sketch8.addConstraint(Sketcher.Constraint("Equal", 1, 2))
sketch8.addConstraint(Sketcher.Constraint("Equal", 2, 3))
sketch8.addConstraint(Sketcher.Constraint("Horizontal", 0, 3, 1, 3))
sketch8.addConstraint(Sketcher.Constraint("Horizontal", 2, 3, 3, 3))
sketch8.addConstraint(Sketcher.Constraint("Vertical", 1, 3, 2, 3))
sketch8.addConstraint(Sketcher.Constraint("Vertical", 0, 3, 3, 3))
sketch8.addConstraint(Sketcher.Constraint("Diameter", 0, 2.8))
sketch8.addConstraint(Sketcher.Constraint("DistanceX", 0, 3, 1, 3, 100.0))
sketch8.addConstraint(Sketcher.Constraint("DistanceY", 2, 3, 1, 3, 66.0))
sketch8.addConstraint(Sketcher.Constraint("DistanceY", 0, 3, -1, 1, 9.5))
sketch8.addConstraint(Sketcher.Constraint("DistanceX", 0, 3, -1, 1, 36.001043))
pocket5 = body.newObject("PartDesign::Pocket", "Pocket004")
pocket5.Profile = sketch8
pocket5.Length = 15

sketch9 = body.newObject("Sketcher::SketchObject", "Sketch008")
sketch9.AttachmentSupport = (doc.getObject("YZ_Plane"), [""])
sketch9.MapMode = "FlatFace"
sketch9.AttachmentOffset = App.Placement(Vector(0, 0, -40.001043), App.Rotation())
sketch9.addGeometry(Part.LineSegment(Vector(8.5, -63.5, 0), Vector(8.5, -53.5, 0)), False)
sketch9.addGeometry(Part.ArcOfCircle(Part.Circle(Vector(9.5, -53.5, 0), Vector(0, 0, 1), 1), math.radians(90), math.radians(180)), False)
sketch9.addGeometry(Part.LineSegment(Vector(9.5, -52.5, 0), Vector(14.5, -52.5, 0)), False)
sketch9.addGeometry(Part.ArcOfCircle(Part.Circle(Vector(14.5, -53.5, 0), Vector(0, 0, 1), 1), math.radians(0), math.radians(90)), False)
sketch9.addGeometry(Part.LineSegment(Vector(15.5, -53.5, 0), Vector(15.5, -63.5, 0)), False)
sketch9.addGeometry(Part.ArcOfCircle(Part.Circle(Vector(14.5, -63.5, 0), Vector(0, 0, 1), 1), math.radians(-90), math.radians(0)), False)
sketch9.addGeometry(Part.LineSegment(Vector(14.5, -64.5, 0), Vector(9.5, -64.5, 0)), False)
sketch9.addGeometry(Part.ArcOfCircle(Part.Circle(Vector(9.5, -63.5, 0), Vector(0, 0, 1), 1), math.radians(-180), math.radians(-90)), False)
sketch9.addConstraint(Sketcher.Constraint("Tangent", 0, 2, 1, 2))
sketch9.addConstraint(Sketcher.Constraint("Tangent", 1, 1, 2, 1))
sketch9.addConstraint(Sketcher.Constraint("Tangent", 2, 2, 3, 2))
sketch9.addConstraint(Sketcher.Constraint("Tangent", 3, 1, 4, 1))
sketch9.addConstraint(Sketcher.Constraint("Tangent", 4, 2, 5, 2))
sketch9.addConstraint(Sketcher.Constraint("Tangent", 5, 1, 6, 1))
sketch9.addConstraint(Sketcher.Constraint("Tangent", 6, 2, 7, 2))
sketch9.addConstraint(Sketcher.Constraint("Tangent", 7, 1, 0, 1))
sketch9.addConstraint(Sketcher.Constraint("Vertical", 0))
sketch9.addConstraint(Sketcher.Constraint("Horizontal", 2))
sketch9.addConstraint(Sketcher.Constraint("Vertical", 4))
sketch9.addConstraint(Sketcher.Constraint("Horizontal", 6))
sketch9.addConstraint(Sketcher.Constraint("Equal", 1, 3))
sketch9.addConstraint(Sketcher.Constraint("Equal", 3, 5))
sketch9.addConstraint(Sketcher.Constraint("Equal", 5, 7))
sketch9.addConstraint(Sketcher.Constraint("Radius", 1, 1.0))
sketch9.addConstraint(Sketcher.Constraint("DistanceX", 2, 1, 2, 2, 5.0))
sketch9.addConstraint(Sketcher.Constraint("DistanceY", 0, 1, 0, 2, 10.0))
sketch9.addConstraint(Sketcher.Constraint("DistanceX", -1, 1, 1, 3, 9.5))
sketch9.addConstraint(Sketcher.Constraint("DistanceY", 1, 3, -1, 1, 53.5))
pocket6 = body.newObject("PartDesign::Pocket", "Pocket005")
pocket6.Profile = sketch9
pocket6.Length = 3
pocket6.Reversed = True

sketch10 = body.newObject("Sketcher::SketchObject", "Sketch009")
sketch10.AttachmentSupport = (doc.getObject("XZ_Plane"), [""])
sketch10.MapMode = "FlatFace"
sketch10.AttachmentOffset = App.Placement(Vector(0, 0, -2), App.Rotation())
sketch10.addGeometry(Part.Circle(Vector(11.884741, -32, 0), Vector(0, 0, 1), 4.52842), False)
sketch10.addConstraint(Sketcher.Constraint("DistanceY", 0, 3, -1, 1, 32.0))
sketch10.addConstraint(Sketcher.Constraint("Diameter", 0, 9.056839))
sketch10.addConstraint(Sketcher.Constraint("DistanceX", -1, 1, 0, 3, 11.884741))
pocket7 = body.newObject("PartDesign::Pocket", "Pocket006")
pocket7.Profile = sketch10
pocket7.Length = 42

sketch11 = body.newObject("Sketcher::SketchObject", "Sketch010")
sketch11.AttachmentSupport = (doc.getObject("XZ_Plane"), [""])
sketch11.MapMode = "FlatFace"
sketch11.AttachmentOffset = App.Placement(Vector(0, 0, -2), App.Rotation())
sketch11.addGeometry(Part.Circle(Vector(11.884741, -23, 0), Vector(0, 0, 1), 1.5), False)
sketch11.addConstraint(Sketcher.Constraint("Diameter", 0, 3.0))
sketch11.addConstraint(Sketcher.Constraint("DistanceY", 0, 3, -1, 1, 23.0))
sketch11.addConstraint(Sketcher.Constraint("DistanceX", -1, 1, 0, 3, 11.884741))
pocket8 = body.newObject("PartDesign::Pocket", "Pocket007")
pocket8.Profile = sketch11
pocket8.Length = 42

sketch12 = body.newObject("Sketcher::SketchObject", "Sketch011")
sketch12.AttachmentSupport = (doc.getObject("XY_Plane"), [""])
sketch12.MapMode = "FlatFace"
sketch12.addGeometry(Part.LineSegment(Vector(0.961039, 17.276987, 0), Vector(-7.038961, 17.276987, 0)), False)
sketch12.addGeometry(Part.ArcOfCircle(Part.Circle(Vector(-7.038961, 16.276987, 0), Vector(0, 0, 1), 1), math.radians(90), math.radians(180)), False)
sketch12.addGeometry(Part.LineSegment(Vector(-8.038961, 16.276987, 0), Vector(-8.038961, 15.276987, 0)), False)
sketch12.addGeometry(Part.ArcOfCircle(Part.Circle(Vector(-7.038961, 15.276987, 0), Vector(0, 0, 1), 1), math.radians(-180), math.radians(-90)), False)
sketch12.addGeometry(Part.LineSegment(Vector(-7.038961, 14.276987, 0), Vector(0.961039, 14.276987, 0)), False)
sketch12.addGeometry(Part.ArcOfCircle(Part.Circle(Vector(0.961039, 15.276987, 0), Vector(0, 0, 1), 1), math.radians(-90), math.radians(0)), False)
sketch12.addGeometry(Part.LineSegment(Vector(1.961039, 15.276987, 0), Vector(1.961039, 16.276987, 0)), False)
sketch12.addGeometry(Part.ArcOfCircle(Part.Circle(Vector(0.961039, 16.276987, 0), Vector(0, 0, 1), 1), math.radians(0), math.radians(90)), False)
sketch12.addConstraint(Sketcher.Constraint("Tangent", 0, 2, 1, 1))
sketch12.addConstraint(Sketcher.Constraint("Tangent", 1, 2, 2, 1))
sketch12.addConstraint(Sketcher.Constraint("Tangent", 2, 2, 3, 1))
sketch12.addConstraint(Sketcher.Constraint("Tangent", 3, 2, 4, 1))
sketch12.addConstraint(Sketcher.Constraint("Tangent", 4, 2, 5, 1))
sketch12.addConstraint(Sketcher.Constraint("Tangent", 5, 2, 6, 1))
sketch12.addConstraint(Sketcher.Constraint("Tangent", 6, 2, 7, 1))
sketch12.addConstraint(Sketcher.Constraint("Tangent", 7, 2, 0, 1))
sketch12.addConstraint(Sketcher.Constraint("Horizontal", 0))
sketch12.addConstraint(Sketcher.Constraint("Vertical", 2))
sketch12.addConstraint(Sketcher.Constraint("Horizontal", 4))
sketch12.addConstraint(Sketcher.Constraint("Vertical", 6))
sketch12.addConstraint(Sketcher.Constraint("Equal", 1, 3))
sketch12.addConstraint(Sketcher.Constraint("Equal", 3, 5))
sketch12.addConstraint(Sketcher.Constraint("Equal", 5, 7))
sketch12.addConstraint(Sketcher.Constraint("Radius", 1, 1.0))
sketch12.addConstraint(Sketcher.Constraint("DistanceX", 0, 2, 0, 1, 8.0))
sketch12.addConstraint(Sketcher.Constraint("DistanceY", 2, 2, 2, 1, 1.0))
sketch12.addConstraint(Sketcher.Constraint("DistanceX", 1, 3, -1, 1, 7.038961))
sketch12.addConstraint(Sketcher.Constraint("DistanceY", -1, 1, 1, 3, 16.276987))
pocket9 = body.newObject("PartDesign::Pocket", "Pocket008")
pocket9.Profile = sketch12
pocket9.Length = 3

sketch13 = body.newObject("Sketcher::SketchObject", "Sketch012")
sketch13.AttachmentSupport = (doc.getObject("XZ_Plane"), [""])
sketch13.MapMode = "FlatFace"
sketch13.AttachmentOffset = App.Placement(Vector(0, 0, -2), App.Rotation())
sketch13.addGeometry(Part.Circle(Vector(-0.836629, -37.826437, 0), Vector(0, 0, 1), 1.5), False)
sketch13.addConstraint(Sketcher.Constraint("Diameter", 0, 3.0))
sketch13.addConstraint(Sketcher.Constraint("DistanceX", 0, 3, -1, 1, 0.836629))
sketch13.addConstraint(Sketcher.Constraint("DistanceY", 0, 3, -1, 1, 37.826437))
pocket10 = body.newObject("PartDesign::Pocket", "Pocket009")
pocket10.Profile = sketch13
pocket10.Length = 98

sketch14 = body.newObject("Sketcher::SketchObject", "Sketch013")
sketch14.AttachmentSupport = (doc.getObject("YZ_Plane"), [""])
sketch14.MapMode = "FlatFace"
sketch14.AttachmentOffset = App.Placement(Vector(0, 0, -40.001043), App.Rotation())
sketch14.addGeometry(Part.LineSegment(Vector(16.5, -52.5, 0), Vector(16.5, -64.5, 0)), False)
sketch14.addGeometry(Part.ArcOfCircle(Part.Circle(Vector(14.5, -64.5, 0), Vector(0, 0, 1), 2), math.radians(-90), math.radians(0)), False)
sketch14.addGeometry(Part.LineSegment(Vector(14.5, -66.5, 0), Vector(9.5, -66.5, 0)), False)
sketch14.addGeometry(Part.ArcOfCircle(Part.Circle(Vector(9.5, -64.5, 0), Vector(0, 0, 1), 2), math.radians(-180), math.radians(-90)), False)
sketch14.addGeometry(Part.LineSegment(Vector(7.5, -64.5, 0), Vector(7.5, -52.5, 0)), False)
sketch14.addGeometry(Part.ArcOfCircle(Part.Circle(Vector(9.5, -52.5, 0), Vector(0, 0, 1), 2), math.radians(90), math.radians(180)), False)
sketch14.addGeometry(Part.LineSegment(Vector(9.5, -50.5, 0), Vector(14.5, -50.5, 0)), False)
sketch14.addGeometry(Part.ArcOfCircle(Part.Circle(Vector(14.5, -52.5, 0), Vector(0, 0, 1), 2), math.radians(0), math.radians(90)), False)
sketch14.addConstraint(Sketcher.Constraint("Tangent", 0, 2, 1, 2))
sketch14.addConstraint(Sketcher.Constraint("Tangent", 1, 1, 2, 1))
sketch14.addConstraint(Sketcher.Constraint("Tangent", 2, 2, 3, 2))
sketch14.addConstraint(Sketcher.Constraint("Tangent", 3, 1, 4, 1))
sketch14.addConstraint(Sketcher.Constraint("Tangent", 4, 2, 5, 2))
sketch14.addConstraint(Sketcher.Constraint("Tangent", 5, 1, 6, 1))
sketch14.addConstraint(Sketcher.Constraint("Tangent", 6, 2, 7, 2))
sketch14.addConstraint(Sketcher.Constraint("Tangent", 7, 1, 0, 1))
sketch14.addConstraint(Sketcher.Constraint("Vertical", 0))
sketch14.addConstraint(Sketcher.Constraint("Horizontal", 2))
sketch14.addConstraint(Sketcher.Constraint("Vertical", 4))
sketch14.addConstraint(Sketcher.Constraint("Horizontal", 6))
sketch14.addConstraint(Sketcher.Constraint("Equal", 1, 3))
sketch14.addConstraint(Sketcher.Constraint("Equal", 3, 5))
sketch14.addConstraint(Sketcher.Constraint("Equal", 5, 7))
sketch14.addConstraint(Sketcher.Constraint("Radius", 1, 2.0))
sketch14.addConstraint(Sketcher.Constraint("DistanceX", 2, 2, 2, 1, 5.0))
sketch14.addConstraint(Sketcher.Constraint("DistanceY", 0, 2, 0, 1, 12.0))
sketch14.addConstraint(Sketcher.Constraint("DistanceX", -1, 1, 1, 3, 14.5))
sketch14.addConstraint(Sketcher.Constraint("DistanceY", 1, 3, -1, 1, 64.5))
pocket11 = body.newObject("PartDesign::Pocket", "Pocket010")
pocket11.Profile = sketch14
pocket11.Length = 3
pocket11.Reversed = True

doc.recompute()
